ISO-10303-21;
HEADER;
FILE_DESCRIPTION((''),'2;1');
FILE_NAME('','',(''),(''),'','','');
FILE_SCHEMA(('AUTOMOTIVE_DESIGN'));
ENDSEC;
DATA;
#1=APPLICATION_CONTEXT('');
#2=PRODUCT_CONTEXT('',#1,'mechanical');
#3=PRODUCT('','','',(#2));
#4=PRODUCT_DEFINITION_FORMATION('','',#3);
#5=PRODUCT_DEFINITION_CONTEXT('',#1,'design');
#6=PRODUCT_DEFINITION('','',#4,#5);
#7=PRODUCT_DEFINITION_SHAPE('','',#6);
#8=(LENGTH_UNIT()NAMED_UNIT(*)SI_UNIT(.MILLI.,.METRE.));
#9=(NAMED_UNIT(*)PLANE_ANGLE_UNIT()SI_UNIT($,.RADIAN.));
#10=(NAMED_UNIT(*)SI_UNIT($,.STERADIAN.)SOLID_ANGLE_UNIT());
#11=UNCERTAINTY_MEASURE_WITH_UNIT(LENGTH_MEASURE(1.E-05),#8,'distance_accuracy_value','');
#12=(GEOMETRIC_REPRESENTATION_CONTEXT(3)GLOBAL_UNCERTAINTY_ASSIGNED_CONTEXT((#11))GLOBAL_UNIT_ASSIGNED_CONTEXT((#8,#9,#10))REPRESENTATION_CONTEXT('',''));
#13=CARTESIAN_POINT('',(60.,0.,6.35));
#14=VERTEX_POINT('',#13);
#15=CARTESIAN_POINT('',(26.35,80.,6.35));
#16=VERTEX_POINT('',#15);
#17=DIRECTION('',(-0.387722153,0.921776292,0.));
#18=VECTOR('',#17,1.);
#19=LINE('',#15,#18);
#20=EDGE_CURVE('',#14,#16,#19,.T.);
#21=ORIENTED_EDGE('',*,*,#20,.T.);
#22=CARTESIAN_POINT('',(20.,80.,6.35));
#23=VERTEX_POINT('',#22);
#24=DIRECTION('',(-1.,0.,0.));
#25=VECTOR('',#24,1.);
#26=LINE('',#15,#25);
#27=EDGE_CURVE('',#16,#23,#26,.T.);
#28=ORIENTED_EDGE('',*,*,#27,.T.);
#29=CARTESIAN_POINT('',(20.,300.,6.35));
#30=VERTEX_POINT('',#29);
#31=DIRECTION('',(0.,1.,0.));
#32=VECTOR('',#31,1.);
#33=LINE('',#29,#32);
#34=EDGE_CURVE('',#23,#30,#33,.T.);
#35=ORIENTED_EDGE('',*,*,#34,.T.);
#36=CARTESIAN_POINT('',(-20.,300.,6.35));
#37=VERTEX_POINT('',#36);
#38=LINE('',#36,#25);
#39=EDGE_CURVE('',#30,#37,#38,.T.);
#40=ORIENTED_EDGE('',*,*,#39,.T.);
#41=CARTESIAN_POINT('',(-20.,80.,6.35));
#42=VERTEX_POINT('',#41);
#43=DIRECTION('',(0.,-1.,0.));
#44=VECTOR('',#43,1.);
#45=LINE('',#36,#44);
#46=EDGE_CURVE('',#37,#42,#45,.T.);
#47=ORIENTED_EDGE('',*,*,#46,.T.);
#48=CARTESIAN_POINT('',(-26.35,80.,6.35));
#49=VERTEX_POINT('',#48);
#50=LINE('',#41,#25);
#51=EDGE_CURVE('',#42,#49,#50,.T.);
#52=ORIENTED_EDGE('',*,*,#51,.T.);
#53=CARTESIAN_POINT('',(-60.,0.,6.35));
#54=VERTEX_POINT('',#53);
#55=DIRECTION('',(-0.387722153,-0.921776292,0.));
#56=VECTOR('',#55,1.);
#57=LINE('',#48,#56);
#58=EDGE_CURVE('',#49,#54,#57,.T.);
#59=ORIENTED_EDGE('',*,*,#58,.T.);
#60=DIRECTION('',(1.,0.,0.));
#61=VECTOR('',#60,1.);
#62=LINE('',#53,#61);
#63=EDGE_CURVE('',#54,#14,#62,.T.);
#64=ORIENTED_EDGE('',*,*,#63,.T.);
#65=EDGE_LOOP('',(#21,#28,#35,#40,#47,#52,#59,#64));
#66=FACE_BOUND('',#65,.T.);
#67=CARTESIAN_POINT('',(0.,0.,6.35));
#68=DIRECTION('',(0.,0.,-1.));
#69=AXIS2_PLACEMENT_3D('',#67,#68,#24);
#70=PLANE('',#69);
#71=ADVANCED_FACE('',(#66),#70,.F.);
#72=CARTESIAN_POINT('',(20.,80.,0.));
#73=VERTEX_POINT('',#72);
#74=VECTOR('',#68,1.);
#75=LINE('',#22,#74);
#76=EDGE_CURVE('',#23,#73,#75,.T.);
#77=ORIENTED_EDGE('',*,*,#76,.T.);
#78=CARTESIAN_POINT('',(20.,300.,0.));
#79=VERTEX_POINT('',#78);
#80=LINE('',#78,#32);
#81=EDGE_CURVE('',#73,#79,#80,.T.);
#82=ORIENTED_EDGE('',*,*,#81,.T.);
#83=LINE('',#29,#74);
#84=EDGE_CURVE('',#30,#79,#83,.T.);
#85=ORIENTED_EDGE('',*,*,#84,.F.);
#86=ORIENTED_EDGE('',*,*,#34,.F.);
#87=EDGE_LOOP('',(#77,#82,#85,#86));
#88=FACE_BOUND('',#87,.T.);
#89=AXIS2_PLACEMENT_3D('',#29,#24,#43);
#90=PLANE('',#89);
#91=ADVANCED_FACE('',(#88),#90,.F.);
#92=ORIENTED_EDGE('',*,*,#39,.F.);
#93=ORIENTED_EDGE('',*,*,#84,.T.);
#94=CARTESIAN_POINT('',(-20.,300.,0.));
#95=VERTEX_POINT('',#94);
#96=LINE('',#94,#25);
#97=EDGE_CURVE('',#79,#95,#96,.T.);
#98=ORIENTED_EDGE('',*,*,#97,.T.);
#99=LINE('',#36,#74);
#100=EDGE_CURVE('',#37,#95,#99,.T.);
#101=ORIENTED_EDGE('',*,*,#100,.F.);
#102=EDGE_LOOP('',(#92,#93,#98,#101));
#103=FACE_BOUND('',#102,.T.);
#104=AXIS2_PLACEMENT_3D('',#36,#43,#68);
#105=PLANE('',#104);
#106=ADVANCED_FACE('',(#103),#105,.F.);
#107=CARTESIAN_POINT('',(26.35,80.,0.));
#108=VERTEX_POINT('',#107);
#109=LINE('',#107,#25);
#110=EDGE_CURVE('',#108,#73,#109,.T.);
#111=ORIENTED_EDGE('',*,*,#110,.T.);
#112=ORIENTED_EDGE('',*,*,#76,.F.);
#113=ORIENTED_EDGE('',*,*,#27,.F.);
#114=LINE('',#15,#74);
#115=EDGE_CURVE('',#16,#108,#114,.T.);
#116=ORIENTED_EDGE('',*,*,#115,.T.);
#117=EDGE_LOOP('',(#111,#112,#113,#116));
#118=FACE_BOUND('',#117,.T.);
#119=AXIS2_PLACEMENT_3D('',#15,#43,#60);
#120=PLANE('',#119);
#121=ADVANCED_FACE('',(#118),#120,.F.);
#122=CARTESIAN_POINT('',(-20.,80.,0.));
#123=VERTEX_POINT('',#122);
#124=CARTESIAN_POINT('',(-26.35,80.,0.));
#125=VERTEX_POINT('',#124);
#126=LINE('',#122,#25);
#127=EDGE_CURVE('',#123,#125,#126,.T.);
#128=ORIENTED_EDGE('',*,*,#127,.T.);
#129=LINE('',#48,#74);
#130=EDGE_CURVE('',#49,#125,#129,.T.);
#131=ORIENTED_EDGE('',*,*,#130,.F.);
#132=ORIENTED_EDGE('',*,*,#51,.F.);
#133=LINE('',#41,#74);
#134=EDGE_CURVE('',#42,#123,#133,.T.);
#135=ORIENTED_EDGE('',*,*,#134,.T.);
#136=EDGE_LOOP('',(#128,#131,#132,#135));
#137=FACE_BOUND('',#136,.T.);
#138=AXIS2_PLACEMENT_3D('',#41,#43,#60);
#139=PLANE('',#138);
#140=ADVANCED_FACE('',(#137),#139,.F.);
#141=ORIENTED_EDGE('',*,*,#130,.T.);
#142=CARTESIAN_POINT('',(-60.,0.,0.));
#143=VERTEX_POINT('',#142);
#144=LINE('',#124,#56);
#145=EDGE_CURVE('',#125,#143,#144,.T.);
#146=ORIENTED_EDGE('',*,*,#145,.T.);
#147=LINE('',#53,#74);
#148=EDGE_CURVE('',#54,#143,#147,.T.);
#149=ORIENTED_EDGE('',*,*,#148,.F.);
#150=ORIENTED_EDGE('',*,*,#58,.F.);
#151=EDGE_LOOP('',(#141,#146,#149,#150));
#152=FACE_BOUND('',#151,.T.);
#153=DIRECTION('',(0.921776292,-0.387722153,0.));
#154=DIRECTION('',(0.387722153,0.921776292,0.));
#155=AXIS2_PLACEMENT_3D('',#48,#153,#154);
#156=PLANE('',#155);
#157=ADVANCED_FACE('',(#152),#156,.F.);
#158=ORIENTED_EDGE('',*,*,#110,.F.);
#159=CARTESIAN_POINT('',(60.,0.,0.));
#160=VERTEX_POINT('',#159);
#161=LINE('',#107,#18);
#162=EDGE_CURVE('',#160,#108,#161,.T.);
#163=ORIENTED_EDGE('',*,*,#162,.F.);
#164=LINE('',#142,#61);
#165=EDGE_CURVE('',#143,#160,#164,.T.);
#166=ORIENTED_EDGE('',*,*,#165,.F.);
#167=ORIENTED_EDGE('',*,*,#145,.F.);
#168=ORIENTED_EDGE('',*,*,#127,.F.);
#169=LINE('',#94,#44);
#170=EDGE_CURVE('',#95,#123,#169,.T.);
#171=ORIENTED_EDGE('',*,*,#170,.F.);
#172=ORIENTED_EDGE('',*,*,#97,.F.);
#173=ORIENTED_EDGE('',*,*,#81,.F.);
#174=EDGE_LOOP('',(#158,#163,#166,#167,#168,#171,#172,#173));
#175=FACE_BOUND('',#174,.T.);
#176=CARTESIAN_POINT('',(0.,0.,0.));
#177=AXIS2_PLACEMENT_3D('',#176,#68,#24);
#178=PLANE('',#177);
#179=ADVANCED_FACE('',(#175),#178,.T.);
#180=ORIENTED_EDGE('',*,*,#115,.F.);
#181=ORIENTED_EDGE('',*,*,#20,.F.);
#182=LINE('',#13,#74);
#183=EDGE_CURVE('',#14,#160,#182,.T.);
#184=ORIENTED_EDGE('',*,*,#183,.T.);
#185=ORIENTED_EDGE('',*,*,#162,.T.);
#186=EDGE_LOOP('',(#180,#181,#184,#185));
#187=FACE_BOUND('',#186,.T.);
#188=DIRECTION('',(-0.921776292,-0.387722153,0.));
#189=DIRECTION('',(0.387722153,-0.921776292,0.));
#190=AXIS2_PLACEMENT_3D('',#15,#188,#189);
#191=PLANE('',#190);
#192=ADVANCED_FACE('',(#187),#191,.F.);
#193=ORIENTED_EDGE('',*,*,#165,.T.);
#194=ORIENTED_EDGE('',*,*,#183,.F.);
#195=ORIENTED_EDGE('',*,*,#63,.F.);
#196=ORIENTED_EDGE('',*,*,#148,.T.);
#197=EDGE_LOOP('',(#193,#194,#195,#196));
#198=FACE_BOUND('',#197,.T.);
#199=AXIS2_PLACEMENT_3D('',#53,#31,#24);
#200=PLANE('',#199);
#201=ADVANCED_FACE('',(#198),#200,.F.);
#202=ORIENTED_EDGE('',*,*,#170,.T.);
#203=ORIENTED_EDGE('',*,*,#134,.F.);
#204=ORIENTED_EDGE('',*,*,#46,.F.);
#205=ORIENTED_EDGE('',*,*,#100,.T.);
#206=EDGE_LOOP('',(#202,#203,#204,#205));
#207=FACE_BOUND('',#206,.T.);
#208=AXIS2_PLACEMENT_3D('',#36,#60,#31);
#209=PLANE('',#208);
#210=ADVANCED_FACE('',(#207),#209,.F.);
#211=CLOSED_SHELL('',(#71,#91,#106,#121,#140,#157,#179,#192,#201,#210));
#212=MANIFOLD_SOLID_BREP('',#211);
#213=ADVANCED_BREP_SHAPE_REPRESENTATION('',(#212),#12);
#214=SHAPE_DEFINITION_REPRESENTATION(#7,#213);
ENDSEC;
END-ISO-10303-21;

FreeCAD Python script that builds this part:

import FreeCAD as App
import Part
import Sketcher
from FreeCAD import Vector


def add_polygon(sketch, points):
    """Adds a closed chain of lines whose ends are joined by coincident constraints."""
    first, n = sketch.GeometryCount, len(points)
    for a, b in zip(points, points[1:] + points[:1]):
        sketch.addGeometry(Part.LineSegment(App.Vector(*a, 0), App.Vector(*b, 0)), False)
    for i in range(n):
        sketch.addConstraint(Sketcher.Constraint("Coincident", first + i, 2, first + (i + 1) % n, 1))

doc = App.newDocument("Part")
body = doc.addObject("PartDesign::Body", "Body")

# Sketch on XY plane
sketch1 = body.newObject("Sketcher::SketchObject", "Sketch")
sketch1.AttachmentSupport = (doc.getObject("XY_Plane"), [""])
sketch1.MapMode = "FlatFace"
add_polygon(sketch1, [(20, 300), (-20, 300), (-20, 80), (-26.35, 80), (-60, 0), (60, 0), (26.35, 80), (20, 80)])  # lines 0-7
sketch1.addConstraint([
    Sketcher.Constraint("Horizontal", 0),
    Sketcher.Constraint("Vertical", 1),
    Sketcher.Constraint("Horizontal", 2),
    Sketcher.Constraint("Horizontal", 4),
    Sketcher.Constraint("Horizontal", 6),
    Sketcher.Constraint("Vertical", 7),
    Sketcher.Constraint("Symmetric", 3, 2, 4, 2, -1, 1),
    Sketcher.Constraint("Symmetric", 2, 2, 5, 2, -2),
    Sketcher.Constraint("Equal", 2, 6),
    Sketcher.Constraint("DistanceX", 0, 2, 0, 1, 40.0),
    Sketcher.Constraint("DistanceX", 4, 1, 4, 2, 120.0),
    Sketcher.Constraint("DistanceY", 1, 2, 1, 1, 220.0),
    Sketcher.Constraint("DistanceY", -1, 1, 0, 2, 300.0),
    Sketcher.Constraint("DistanceX", 2, 2, 2, 1, 6.35),
])
pad1 = body.newObject("PartDesign::Pad", "Pad")
pad1.Profile = sketch1
pad1.Length = 6.35

doc.recompute()
